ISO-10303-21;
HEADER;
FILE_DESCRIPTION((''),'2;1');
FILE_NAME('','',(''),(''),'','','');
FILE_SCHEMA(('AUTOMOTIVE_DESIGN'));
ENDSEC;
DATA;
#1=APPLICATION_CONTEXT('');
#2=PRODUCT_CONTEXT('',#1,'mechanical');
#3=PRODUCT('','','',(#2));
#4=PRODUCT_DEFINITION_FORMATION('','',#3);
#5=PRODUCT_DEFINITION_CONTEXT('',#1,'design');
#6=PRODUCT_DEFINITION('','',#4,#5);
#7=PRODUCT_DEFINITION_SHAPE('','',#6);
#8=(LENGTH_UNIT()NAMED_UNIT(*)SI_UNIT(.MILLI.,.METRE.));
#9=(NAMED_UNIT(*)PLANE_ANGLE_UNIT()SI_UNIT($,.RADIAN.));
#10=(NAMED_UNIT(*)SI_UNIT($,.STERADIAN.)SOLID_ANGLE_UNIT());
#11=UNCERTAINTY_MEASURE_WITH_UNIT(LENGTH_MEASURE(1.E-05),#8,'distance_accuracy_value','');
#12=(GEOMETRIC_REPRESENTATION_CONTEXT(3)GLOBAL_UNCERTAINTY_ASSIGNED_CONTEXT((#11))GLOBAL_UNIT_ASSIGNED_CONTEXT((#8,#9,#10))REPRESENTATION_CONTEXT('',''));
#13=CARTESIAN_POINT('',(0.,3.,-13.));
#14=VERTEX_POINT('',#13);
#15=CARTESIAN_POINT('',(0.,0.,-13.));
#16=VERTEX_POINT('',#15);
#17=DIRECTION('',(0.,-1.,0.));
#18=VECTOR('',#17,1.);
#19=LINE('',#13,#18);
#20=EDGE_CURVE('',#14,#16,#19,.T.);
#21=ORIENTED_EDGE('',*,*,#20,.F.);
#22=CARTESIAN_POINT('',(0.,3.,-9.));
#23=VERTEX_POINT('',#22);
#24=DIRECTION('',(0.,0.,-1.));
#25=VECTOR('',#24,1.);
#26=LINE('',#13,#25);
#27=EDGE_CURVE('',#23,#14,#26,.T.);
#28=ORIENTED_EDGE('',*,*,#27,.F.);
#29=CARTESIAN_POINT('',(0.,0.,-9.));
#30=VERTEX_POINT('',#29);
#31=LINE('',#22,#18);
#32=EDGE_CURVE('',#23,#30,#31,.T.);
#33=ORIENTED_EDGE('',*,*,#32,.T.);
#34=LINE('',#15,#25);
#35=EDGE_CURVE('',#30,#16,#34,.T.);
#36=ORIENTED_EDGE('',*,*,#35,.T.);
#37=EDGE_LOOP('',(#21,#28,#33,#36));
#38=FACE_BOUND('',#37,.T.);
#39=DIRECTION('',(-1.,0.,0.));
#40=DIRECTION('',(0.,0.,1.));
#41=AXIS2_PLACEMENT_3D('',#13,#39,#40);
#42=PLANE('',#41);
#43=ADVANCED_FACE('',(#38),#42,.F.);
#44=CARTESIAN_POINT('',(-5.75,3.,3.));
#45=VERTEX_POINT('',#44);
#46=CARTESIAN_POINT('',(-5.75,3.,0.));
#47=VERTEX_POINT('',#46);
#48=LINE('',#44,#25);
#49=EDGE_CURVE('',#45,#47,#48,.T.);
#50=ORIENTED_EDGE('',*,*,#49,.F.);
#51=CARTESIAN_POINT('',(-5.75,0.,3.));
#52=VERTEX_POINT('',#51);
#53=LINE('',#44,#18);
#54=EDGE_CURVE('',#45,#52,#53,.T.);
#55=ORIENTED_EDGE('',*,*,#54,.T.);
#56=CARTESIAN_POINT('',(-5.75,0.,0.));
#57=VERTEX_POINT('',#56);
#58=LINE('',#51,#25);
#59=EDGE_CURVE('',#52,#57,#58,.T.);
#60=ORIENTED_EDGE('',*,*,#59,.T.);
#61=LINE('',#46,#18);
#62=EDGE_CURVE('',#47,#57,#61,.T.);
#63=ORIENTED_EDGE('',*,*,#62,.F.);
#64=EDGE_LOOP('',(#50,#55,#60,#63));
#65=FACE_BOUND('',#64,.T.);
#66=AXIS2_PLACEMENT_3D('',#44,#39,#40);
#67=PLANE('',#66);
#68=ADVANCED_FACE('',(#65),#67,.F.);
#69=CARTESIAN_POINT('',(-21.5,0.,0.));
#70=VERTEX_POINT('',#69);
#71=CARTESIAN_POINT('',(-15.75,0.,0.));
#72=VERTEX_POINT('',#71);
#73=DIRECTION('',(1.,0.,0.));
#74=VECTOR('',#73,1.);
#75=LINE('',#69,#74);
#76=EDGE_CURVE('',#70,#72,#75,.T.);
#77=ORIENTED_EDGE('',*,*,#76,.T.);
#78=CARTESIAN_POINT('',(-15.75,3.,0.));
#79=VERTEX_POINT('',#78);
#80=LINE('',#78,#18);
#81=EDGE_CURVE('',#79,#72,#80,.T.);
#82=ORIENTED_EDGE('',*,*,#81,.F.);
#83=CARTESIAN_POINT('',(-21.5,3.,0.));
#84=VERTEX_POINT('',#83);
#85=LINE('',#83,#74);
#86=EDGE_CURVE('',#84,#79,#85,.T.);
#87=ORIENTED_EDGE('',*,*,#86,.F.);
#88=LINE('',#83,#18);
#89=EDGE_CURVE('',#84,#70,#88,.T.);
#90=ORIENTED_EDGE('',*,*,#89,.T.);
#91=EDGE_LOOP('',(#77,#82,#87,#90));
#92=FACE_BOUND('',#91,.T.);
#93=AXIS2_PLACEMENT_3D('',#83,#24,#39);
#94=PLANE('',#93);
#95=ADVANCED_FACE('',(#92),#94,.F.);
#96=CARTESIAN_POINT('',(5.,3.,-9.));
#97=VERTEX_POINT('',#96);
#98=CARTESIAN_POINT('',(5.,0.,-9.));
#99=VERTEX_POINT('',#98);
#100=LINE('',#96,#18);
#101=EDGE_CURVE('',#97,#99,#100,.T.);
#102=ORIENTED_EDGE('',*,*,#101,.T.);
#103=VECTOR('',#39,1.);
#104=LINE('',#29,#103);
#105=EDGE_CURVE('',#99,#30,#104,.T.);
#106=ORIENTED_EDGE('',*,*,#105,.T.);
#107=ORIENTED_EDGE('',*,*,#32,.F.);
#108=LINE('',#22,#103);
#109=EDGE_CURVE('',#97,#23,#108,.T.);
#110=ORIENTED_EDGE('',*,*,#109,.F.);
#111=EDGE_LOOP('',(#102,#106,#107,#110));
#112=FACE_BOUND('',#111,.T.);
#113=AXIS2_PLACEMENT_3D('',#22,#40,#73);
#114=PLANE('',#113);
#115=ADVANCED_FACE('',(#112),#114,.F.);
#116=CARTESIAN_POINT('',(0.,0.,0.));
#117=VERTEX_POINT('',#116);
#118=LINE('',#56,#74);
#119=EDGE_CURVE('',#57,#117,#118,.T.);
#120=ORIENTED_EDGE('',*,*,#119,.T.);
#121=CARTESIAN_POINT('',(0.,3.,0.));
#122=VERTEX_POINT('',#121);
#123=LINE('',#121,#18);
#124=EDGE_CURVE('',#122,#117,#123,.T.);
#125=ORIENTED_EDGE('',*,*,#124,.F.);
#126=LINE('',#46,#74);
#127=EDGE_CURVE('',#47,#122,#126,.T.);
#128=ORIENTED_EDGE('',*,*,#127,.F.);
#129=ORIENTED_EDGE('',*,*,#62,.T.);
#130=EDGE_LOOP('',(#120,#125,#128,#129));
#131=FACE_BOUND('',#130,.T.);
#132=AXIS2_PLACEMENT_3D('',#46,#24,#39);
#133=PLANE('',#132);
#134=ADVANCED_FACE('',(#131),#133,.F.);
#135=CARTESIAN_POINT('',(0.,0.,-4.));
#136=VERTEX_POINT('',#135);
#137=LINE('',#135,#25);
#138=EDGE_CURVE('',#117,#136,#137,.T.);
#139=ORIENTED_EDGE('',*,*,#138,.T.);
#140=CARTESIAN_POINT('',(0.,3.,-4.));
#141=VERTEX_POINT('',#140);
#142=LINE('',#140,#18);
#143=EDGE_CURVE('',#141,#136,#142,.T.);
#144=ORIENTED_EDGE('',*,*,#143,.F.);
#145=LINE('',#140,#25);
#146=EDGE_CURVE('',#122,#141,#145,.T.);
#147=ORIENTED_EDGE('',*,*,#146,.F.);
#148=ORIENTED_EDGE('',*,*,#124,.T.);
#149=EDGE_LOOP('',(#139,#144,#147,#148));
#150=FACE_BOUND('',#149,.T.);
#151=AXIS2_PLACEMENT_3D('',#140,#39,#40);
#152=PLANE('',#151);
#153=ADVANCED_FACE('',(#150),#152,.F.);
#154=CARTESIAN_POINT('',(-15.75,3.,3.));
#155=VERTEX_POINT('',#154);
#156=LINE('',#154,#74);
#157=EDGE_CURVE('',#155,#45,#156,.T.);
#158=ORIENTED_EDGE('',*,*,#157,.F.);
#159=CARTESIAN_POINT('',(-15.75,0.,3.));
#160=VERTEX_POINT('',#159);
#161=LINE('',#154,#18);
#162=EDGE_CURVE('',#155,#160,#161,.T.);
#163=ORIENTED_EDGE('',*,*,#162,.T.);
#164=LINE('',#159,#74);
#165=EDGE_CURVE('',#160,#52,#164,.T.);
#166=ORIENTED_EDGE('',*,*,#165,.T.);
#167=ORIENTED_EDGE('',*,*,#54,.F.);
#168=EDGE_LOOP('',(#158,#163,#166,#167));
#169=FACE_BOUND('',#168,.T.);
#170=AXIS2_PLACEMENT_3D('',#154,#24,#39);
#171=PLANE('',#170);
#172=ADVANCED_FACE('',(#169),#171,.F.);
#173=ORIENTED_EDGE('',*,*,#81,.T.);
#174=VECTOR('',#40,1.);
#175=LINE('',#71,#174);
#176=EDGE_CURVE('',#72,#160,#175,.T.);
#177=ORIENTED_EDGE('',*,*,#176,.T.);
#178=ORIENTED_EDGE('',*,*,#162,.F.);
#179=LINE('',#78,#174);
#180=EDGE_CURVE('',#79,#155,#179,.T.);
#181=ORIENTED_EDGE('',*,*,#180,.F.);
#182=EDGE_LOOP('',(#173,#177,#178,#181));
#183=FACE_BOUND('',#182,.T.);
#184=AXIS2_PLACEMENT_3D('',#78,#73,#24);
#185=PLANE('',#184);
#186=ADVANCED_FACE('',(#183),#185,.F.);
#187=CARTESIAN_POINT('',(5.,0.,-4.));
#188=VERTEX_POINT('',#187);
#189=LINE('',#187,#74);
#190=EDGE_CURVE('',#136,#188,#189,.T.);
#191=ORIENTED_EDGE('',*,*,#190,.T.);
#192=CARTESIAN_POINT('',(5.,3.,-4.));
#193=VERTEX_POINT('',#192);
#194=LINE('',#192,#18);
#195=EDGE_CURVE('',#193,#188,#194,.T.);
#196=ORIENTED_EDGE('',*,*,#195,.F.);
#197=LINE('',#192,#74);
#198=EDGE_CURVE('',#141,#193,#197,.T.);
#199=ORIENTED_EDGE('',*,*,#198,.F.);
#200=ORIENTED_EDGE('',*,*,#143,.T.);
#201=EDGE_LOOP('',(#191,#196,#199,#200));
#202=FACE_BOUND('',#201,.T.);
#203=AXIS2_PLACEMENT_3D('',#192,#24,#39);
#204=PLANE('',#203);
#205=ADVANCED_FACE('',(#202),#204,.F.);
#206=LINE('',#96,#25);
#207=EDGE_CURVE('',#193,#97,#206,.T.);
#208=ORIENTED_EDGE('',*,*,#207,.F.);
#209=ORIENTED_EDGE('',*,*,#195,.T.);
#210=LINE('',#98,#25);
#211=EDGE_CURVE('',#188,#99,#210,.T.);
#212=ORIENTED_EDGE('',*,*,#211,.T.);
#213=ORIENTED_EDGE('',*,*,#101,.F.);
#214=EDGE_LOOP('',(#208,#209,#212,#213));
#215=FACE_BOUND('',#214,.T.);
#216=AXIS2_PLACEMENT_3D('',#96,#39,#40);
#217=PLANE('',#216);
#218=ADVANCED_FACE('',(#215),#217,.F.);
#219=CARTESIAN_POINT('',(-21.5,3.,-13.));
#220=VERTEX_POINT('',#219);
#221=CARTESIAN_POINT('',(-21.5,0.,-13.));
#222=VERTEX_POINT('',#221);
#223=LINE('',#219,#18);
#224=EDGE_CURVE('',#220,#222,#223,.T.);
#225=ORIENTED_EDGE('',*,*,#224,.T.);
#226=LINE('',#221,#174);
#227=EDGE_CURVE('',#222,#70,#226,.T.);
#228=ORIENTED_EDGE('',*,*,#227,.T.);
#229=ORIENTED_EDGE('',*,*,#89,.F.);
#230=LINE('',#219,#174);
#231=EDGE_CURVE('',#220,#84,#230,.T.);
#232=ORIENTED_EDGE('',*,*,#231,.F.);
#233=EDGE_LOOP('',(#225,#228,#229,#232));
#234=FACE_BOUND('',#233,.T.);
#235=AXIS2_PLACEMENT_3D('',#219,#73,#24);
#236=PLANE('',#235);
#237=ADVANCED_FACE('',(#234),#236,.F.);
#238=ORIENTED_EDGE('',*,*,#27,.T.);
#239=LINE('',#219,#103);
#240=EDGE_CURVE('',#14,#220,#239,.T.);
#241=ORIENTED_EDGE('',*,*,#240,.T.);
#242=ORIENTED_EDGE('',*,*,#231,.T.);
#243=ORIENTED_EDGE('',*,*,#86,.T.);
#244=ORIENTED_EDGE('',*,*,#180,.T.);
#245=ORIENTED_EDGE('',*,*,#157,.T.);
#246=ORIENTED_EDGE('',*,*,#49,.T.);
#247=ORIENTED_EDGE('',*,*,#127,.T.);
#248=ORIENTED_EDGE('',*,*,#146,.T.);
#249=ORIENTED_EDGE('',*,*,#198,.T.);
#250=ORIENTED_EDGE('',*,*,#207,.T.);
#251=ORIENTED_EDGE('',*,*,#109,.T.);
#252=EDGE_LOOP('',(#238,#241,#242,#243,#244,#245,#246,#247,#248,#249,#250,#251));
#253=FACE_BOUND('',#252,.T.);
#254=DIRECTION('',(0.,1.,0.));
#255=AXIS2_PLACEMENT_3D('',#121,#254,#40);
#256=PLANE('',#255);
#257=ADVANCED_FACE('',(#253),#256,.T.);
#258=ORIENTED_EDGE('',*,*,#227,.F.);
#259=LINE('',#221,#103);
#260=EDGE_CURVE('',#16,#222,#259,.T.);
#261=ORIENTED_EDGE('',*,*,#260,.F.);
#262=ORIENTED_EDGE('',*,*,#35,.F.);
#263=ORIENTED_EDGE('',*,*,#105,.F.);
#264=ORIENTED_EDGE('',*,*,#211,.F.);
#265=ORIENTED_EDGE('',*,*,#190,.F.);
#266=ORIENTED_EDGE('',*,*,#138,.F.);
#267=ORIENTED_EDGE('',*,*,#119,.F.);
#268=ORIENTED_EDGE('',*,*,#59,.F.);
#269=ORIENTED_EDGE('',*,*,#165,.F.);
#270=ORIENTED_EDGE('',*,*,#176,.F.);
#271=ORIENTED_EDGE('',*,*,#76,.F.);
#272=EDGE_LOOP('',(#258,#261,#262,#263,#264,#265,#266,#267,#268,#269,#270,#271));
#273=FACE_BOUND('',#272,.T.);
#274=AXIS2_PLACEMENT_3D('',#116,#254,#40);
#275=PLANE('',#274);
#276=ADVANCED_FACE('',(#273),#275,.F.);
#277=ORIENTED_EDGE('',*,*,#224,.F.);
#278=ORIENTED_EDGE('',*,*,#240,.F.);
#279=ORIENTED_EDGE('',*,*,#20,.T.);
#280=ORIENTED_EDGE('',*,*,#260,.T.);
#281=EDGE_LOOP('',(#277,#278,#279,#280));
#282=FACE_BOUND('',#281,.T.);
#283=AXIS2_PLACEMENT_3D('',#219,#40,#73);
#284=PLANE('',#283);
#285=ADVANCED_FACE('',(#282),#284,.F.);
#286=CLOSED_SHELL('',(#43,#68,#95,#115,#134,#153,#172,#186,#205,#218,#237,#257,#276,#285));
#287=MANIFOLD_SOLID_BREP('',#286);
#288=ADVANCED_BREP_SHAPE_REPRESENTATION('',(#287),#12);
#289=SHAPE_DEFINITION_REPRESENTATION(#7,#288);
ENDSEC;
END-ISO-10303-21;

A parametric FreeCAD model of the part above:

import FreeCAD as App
import Part
import Sketcher
Q = App.Units.Quantity


def add_polygon(sketch, points):
    """Adds a closed chain of lines whose ends are joined by coincident constraints."""
    first, n = sketch.GeometryCount, len(points)
    for a, b in zip(points, points[1:] + points[:1]):
        sketch.addGeometry(Part.LineSegment(App.Vector(*a, 0), App.Vector(*b, 0)), False)
    for i in range(n):
        sketch.addConstraint(Sketcher.Constraint("Coincident", first + i, 2, first + (i + 1) % n, 1))

doc = App.newDocument("Part")
body = doc.addObject("PartDesign::Body", "Body")

sketch1 = body.newObject("Sketcher::SketchObject", "Sketch")
sketch1.AttachmentSupport = (doc.getObject("XZ_Plane"), [""])
sketch1.MapMode = "FlatFace"
add_polygon(sketch1, [(-15.8, 0), (-15.8, 3), (-5.8, 3), (-5.8, 0), (0, 0), (0, -4), (5, -4), (5, -9), (0, -9), (0, -13), (-21.5, -13), (-21.5, 0)])
sketch1.addConstraint(Sketcher.Constraint("Vertical", 0))
sketch1.addConstraint(Sketcher.Constraint("Horizontal", 1))
sketch1.addConstraint(Sketcher.Constraint("Vertical", 2))
sketch1.addConstraint(Sketcher.Constraint("Horizontal", 3))
sketch1.addConstraint(Sketcher.Constraint("Vertical", 4))
sketch1.addConstraint(Sketcher.Constraint("Horizontal", 5))
sketch1.addConstraint(Sketcher.Constraint("Vertical", 6))
sketch1.addConstraint(Sketcher.Constraint("Horizontal", 7))
sketch1.addConstraint(Sketcher.Constraint("Vertical", 8))
sketch1.addConstraint(Sketcher.Constraint("Horizontal", 9))
sketch1.addConstraint(Sketcher.Constraint("Vertical", 10))
sketch1.addConstraint(Sketcher.Constraint("Horizontal", 11))
sketch1.addConstraint(Sketcher.Constraint("Coincident", 3, 2, -1, 1))
sketch1.addConstraint(Sketcher.Constraint("PointOnObject", 7, 2, -2))
sketch1.addConstraint(Sketcher.Constraint("PointOnObject", 10, 2, -1))
sketch1.addConstraint(Sketcher.Constraint("Equal", 3, 11))
sketch1.addConstraint(Sketcher.Constraint("Equal", 7, 6))
sketch1.addConstraint(Sketcher.Constraint("Equal", 4, 8))
sketch1.addConstraint(Sketcher.Constraint("DistanceX", 1, 1, 1, 2, Q("10 mm")))
sketch1.addConstraint(Sketcher.Constraint("DistanceX", 5, 1, 5, 2, Q("5 mm")))
sketch1.addConstraint(Sketcher.Constraint("DistanceY", 0, 1, 0, 2, Q("3 mm")))
sketch1.addConstraint(Sketcher.Constraint("DistanceY", 4, 2, 4, 1, Q("4 mm")))
sketch1.addConstraint(Sketcher.Constraint("DistanceX", 9, 2, 9, 1, Q("21.5 mm")))
pad1 = body.newObject("PartDesign::Pad", "Pad")
pad1.Profile = sketch1
pad1.Length = 3
pad1.Reversed = True

doc.recompute()
